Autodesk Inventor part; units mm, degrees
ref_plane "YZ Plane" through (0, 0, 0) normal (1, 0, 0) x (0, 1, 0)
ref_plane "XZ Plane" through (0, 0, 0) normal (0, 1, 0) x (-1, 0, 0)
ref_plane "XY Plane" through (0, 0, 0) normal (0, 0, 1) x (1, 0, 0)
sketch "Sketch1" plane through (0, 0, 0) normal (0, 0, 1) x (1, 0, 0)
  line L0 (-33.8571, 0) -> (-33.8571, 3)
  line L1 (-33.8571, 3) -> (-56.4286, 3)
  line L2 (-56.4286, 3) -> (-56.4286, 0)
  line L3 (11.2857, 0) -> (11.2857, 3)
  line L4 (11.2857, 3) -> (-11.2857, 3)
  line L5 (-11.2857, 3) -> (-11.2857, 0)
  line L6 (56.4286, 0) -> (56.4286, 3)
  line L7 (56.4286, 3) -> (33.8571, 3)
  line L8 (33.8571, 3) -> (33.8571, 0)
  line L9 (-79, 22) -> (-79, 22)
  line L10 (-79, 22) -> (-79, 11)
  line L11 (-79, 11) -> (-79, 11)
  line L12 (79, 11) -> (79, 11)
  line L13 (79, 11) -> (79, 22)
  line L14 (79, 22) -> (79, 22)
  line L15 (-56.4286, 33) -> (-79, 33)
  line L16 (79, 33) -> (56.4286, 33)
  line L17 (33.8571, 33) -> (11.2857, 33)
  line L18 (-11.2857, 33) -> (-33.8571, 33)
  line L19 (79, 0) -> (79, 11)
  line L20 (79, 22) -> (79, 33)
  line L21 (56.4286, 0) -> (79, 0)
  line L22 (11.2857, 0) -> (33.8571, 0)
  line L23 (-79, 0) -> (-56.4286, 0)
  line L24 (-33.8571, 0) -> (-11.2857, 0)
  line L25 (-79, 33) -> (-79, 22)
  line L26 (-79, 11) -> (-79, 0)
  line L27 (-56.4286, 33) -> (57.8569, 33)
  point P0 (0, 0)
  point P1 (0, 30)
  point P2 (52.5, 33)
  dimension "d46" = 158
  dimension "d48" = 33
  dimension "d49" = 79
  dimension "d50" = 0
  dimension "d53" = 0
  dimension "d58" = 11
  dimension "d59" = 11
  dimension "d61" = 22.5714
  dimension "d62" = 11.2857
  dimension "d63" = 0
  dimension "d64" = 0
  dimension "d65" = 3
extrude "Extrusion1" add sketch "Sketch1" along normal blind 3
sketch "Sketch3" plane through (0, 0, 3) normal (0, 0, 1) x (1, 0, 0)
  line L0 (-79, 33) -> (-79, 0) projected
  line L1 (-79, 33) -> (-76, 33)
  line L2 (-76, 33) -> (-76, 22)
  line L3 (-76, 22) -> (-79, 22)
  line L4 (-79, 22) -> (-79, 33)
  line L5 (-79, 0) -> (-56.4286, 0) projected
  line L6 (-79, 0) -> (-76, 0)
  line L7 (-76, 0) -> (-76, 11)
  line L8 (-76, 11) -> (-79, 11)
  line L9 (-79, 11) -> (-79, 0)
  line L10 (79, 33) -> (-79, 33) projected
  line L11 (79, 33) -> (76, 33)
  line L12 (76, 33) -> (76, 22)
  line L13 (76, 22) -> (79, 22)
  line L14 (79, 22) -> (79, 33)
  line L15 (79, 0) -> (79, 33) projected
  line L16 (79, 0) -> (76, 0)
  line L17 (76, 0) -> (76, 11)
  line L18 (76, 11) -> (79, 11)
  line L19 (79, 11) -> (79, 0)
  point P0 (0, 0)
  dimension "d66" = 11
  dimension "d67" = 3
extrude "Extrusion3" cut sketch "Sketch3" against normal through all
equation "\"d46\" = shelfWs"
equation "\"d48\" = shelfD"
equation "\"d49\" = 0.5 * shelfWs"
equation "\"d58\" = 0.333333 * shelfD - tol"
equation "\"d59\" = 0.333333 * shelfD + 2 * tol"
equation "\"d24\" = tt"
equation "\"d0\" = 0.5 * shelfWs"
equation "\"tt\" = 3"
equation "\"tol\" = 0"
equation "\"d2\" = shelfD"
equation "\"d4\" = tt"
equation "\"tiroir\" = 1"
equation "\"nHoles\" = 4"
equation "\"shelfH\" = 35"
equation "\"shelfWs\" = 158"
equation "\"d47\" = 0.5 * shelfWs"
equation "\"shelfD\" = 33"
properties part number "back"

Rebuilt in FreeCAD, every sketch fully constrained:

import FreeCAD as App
import Part
import Sketcher
from FreeCAD import Vector


def add_polygon(sketch, points):
    """Adds a closed chain of lines whose ends are joined by coincident constraints."""
    first, n = sketch.GeometryCount, len(points)
    for a, b in zip(points, points[1:] + points[:1]):
        sketch.addGeometry(Part.LineSegment(App.Vector(*a, 0), App.Vector(*b, 0)), False)
    for i in range(n):
        sketch.addConstraint(Sketcher.Constraint("Coincident", first + i, 2, first + (i + 1) % n, 1))

doc = App.newDocument("Part")
body = doc.addObject("PartDesign::Body", "Body")

# Sketch on XY plane
sketch1 = body.newObject("Sketcher::SketchObject", "Sketch")
sketch1.AttachmentSupport = (doc.getObject("XY_Plane"), [""])
sketch1.MapMode = "FlatFace"
add_polygon(sketch1, [(-33.9, 3), (-33.9, 0), (-11.3, 0), (-11.3, 3), (11.3, 3), (11.3, 0), (33.9, 0), (33.9, 3), (56.4, 3), (56.4, 0), (79, 0), (79, 33), (-79, 33), (-79, 0), (-56.4, 0), (-56.4, 3)])  # lines 0-15
sketch1.addConstraint(Sketcher.Constraint("Vertical", 0))
sketch1.addConstraint(Sketcher.Constraint("Horizontal", 1))
sketch1.addConstraint(Sketcher.Constraint("Vertical", 2))
sketch1.addConstraint(Sketcher.Constraint("Horizontal", 3))
sketch1.addConstraint(Sketcher.Constraint("Vertical", 4))
sketch1.addConstraint(Sketcher.Constraint("Horizontal", 5))
sketch1.addConstraint(Sketcher.Constraint("Vertical", 6))
sketch1.addConstraint(Sketcher.Constraint("Horizontal", 7))
sketch1.addConstraint(Sketcher.Constraint("Vertical", 8))
sketch1.addConstraint(Sketcher.Constraint("Horizontal", 9))
sketch1.addConstraint(Sketcher.Constraint("Vertical", 10))
sketch1.addConstraint(Sketcher.Constraint("Horizontal", 11))
sketch1.addConstraint(Sketcher.Constraint("Vertical", 12))
sketch1.addConstraint(Sketcher.Constraint("Horizontal", 13))
sketch1.addConstraint(Sketcher.Constraint("Vertical", 14))
sketch1.addConstraint(Sketcher.Constraint("Horizontal", 15))
sketch1.addConstraint(Sketcher.Constraint("Symmetric", 1, 2, 4, 2, -1, 1))
sketch1.addConstraint(Sketcher.Constraint("Symmetric", 9, 2, 12, 2, -1, 1))
sketch1.addConstraint(Sketcher.Constraint("Symmetric", 0, 2, 5, 2, -2))
sketch1.addConstraint(Sketcher.Constraint("Symmetric", 8, 2, 13, 2, -2))
sketch1.addConstraint(Sketcher.Constraint("Horizontal", 3, 2, 6, 2))
sketch1.addConstraint(Sketcher.Constraint("Horizontal", 7, 2, 14, 2))
sketch1.addConstraint(Sketcher.Constraint("Equal", 1, 3))
sketch1.addConstraint(Sketcher.Constraint("Equal", 5, 7))
sketch1.addConstraint(Sketcher.Constraint("Equal", 7, 9))
sketch1.addConstraint(Sketcher.Constraint("DistanceX", 11, 2, 11, 1, 158.0))
sketch1.addConstraint(Sketcher.Constraint("DistanceY", 0, 2, 0, 1, 3.0))
sketch1.addConstraint(Sketcher.Constraint("DistanceY", 10, 1, 10, 2, 33.0))
pad1 = body.newObject("PartDesign::Pad", "Pad")
pad1.Profile = sketch1
pad1.Length = 3

# Sketch on XY plane
sketch2 = body.newObject("Sketcher::SketchObject", "Sketch001")
sketch2.AttachmentSupport = (doc.getObject("XY_Plane"), [""])
sketch2.MapMode = "FlatFace"
sketch2.AttachmentOffset = App.Placement(Vector(0, 0, 3), App.Rotation())
add_polygon(sketch2, [(-76, 33), (-79, 33), (-79, 22), (-76, 22)])  # lines 0-3
add_polygon(sketch2, [(79, 0), (79, 11), (76, 11), (76, 0)])  # lines 4-7
add_polygon(sketch2, [(79, 33), (76, 33), (76, 22), (79, 22)])  # lines 8-11
add_polygon(sketch2, [(-76, 11), (-79, 11), (-79, 0), (-76, 0)])  # lines 12-15
sketch2.addConstraint(Sketcher.Constraint("Horizontal", 0))
sketch2.addConstraint(Sketcher.Constraint("Vertical", 1))
sketch2.addConstraint(Sketcher.Constraint("Horizontal", 2))
sketch2.addConstraint(Sketcher.Constraint("Vertical", 3))
sketch2.addConstraint(Sketcher.Constraint("Vertical", 4))
sketch2.addConstraint(Sketcher.Constraint("Horizontal", 5))
sketch2.addConstraint(Sketcher.Constraint("Vertical", 6))
sketch2.addConstraint(Sketcher.Constraint("Horizontal", 7))
sketch2.addConstraint(Sketcher.Constraint("Horizontal", 8))
sketch2.addConstraint(Sketcher.Constraint("Vertical", 9))
sketch2.addConstraint(Sketcher.Constraint("Horizontal", 10))
sketch2.addConstraint(Sketcher.Constraint("Vertical", 11))
sketch2.addConstraint(Sketcher.Constraint("Horizontal", 12))
sketch2.addConstraint(Sketcher.Constraint("Vertical", 13))
sketch2.addConstraint(Sketcher.Constraint("Horizontal", 14))
sketch2.addConstraint(Sketcher.Constraint("Vertical", 15))
sketch2.addConstraint(Sketcher.Constraint("Symmetric", 7, 2, 13, 2, -1, 1))
sketch2.addConstraint(Sketcher.Constraint("Symmetric", 3, 2, 8, 2, -2))
sketch2.addConstraint(Sketcher.Constraint("Symmetric", 1, 2, 10, 2, -2))
sketch2.addConstraint(Sketcher.Constraint("Symmetric", 6, 2, 14, 2, -2))
sketch2.addConstraint(Sketcher.Constraint("Horizontal", 5, 2, 12, 2))
sketch2.addConstraint(Sketcher.Constraint("Vertical", 6, 2, 8, 2))
sketch2.addConstraint(Sketcher.Constraint("Vertical", 7, 2, 10, 2))
sketch2.addConstraint(Sketcher.Constraint("Equal", 3, 4))
sketch2.addConstraint(Sketcher.Constraint("DistanceX", 0, 2, 0, 1, 3.0))
sketch2.addConstraint(Sketcher.Constraint("DistanceY", 1, 2, 1, 1, 11.0))
sketch2.addConstraint(Sketcher.Constraint("DistanceY", 4, 2, 2, 2, 11.0))
sketch2.addConstraint(Sketcher.Constraint("DistanceX", 0, 2, -1, 1, 79.0))
pocket1 = body.newObject("PartDesign::Pocket", "Pocket")
pocket1.Profile = sketch2
pocket1.Type = "ThroughAll"

doc.recompute()
